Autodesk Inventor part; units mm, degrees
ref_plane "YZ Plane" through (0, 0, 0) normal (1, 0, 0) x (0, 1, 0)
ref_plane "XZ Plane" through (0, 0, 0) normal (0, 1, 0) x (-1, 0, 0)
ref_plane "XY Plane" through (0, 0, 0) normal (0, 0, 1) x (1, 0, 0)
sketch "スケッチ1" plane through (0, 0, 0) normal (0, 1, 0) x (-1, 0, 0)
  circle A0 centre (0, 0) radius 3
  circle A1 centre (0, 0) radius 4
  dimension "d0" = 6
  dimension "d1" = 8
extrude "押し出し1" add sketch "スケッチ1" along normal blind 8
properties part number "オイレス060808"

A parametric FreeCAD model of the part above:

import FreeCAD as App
import Part
import Sketcher
from FreeCAD import Vector
Q = App.Units.Quantity

doc = App.newDocument("Part")
params = doc.addObject("Spreadsheet::Sheet", "Params")
for row, (alias, value) in enumerate([
    ("sketch1_diameter", "8 mm"),
    ("sketch1_diameter2", "6 mm"),
    ("pad1_length", "8 mm"),
], start=1):
    params.set(f"A{row}", alias)
    params.set(f"B{row}", "=" + value)
    params.setAlias(f"B{row}", alias)

body = doc.addObject("PartDesign::Body", "Body")

sketch1 = doc.addObject("Sketcher::SketchObject", "Sketch")
body.addObject(sketch1)
sketch1.AttachmentSupport = (doc.XZ_Plane, [""])
sketch1.MapMode = "FlatFace"
sketch1.addGeometry(Part.Circle(Vector(0, 0, 0), Vector(0, 0, 1), 4), False)
sketch1.addGeometry(Part.Circle(Vector(0, 0, 0), Vector(0, 0, 1), 3), False)
sketch1.addConstraint(Sketcher.Constraint("Coincident", 0, 3, -1, 1))
sketch1.addConstraint(Sketcher.Constraint("Coincident", 1, 3, -1, 1))
sketch1.addConstraint(Sketcher.Constraint("Diameter", 0, Q("8 mm")))
sketch1.addConstraint(Sketcher.Constraint("Diameter", 1, Q("6 mm")))
sketch1.setExpression("Constraints[2]", "Params.sketch1_diameter")
sketch1.setExpression("Constraints[3]", "Params.sketch1_diameter2")
pad1 = doc.addObject("PartDesign::Pad", "Pad")
body.addObject(pad1)
pad1.Profile = sketch1
pad1.setExpression("Length", "Params.pad1_length")
pad1.Reversed = True

doc.recompute()
